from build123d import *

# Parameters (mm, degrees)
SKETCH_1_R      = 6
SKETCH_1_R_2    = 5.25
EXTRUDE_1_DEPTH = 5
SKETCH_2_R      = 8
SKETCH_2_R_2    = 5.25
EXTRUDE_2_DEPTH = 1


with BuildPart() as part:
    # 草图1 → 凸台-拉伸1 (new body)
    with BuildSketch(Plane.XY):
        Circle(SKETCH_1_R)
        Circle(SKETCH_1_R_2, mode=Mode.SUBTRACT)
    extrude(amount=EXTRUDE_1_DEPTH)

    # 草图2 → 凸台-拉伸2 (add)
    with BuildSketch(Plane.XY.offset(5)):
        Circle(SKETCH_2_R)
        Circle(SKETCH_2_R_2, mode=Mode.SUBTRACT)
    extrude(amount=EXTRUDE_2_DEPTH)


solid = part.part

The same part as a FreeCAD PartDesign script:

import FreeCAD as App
import Part
import Sketcher
Q = App.Units.Quantity

doc = App.newDocument("Part")
body = doc.addObject("PartDesign::Body", "Body")

# Sketch on XY plane
sketch1 = body.newObject("Sketcher::SketchObject", "Sketch")
sketch1.AttachmentSupport = (doc.getObject("XY_Plane"), [""])
sketch1.MapMode = "FlatFace"
sketch1.addGeometry(Part.Circle(App.Vector(0, 0, 0), App.Vector(0, 0, 1), 6), False)
sketch1.addGeometry(Part.Circle(App.Vector(0, 0, 0), App.Vector(0, 0, 1), 5), False)
sketch1.addConstraint(Sketcher.Constraint("Coincident", 0, 3, -1, 1))
sketch1.addConstraint(Sketcher.Constraint("Coincident", 1, 3, -1, 1))
sketch1.addConstraint(Sketcher.Constraint("Diameter", 0, Q("12 mm")))
sketch1.addConstraint(Sketcher.Constraint("Diameter", 1, Q("10.5 mm")))
pad1 = body.newObject("PartDesign::Pad", "Pad")
pad1.Profile = sketch1
pad1.Length = 5

# Sketch on XY plane
sketch2 = body.newObject("Sketcher::SketchObject", "Sketch001")
sketch2.AttachmentSupport = (doc.getObject("XY_Plane"), [""])
sketch2.MapMode = "FlatFace"
sketch2.AttachmentOffset = App.Placement(App.Vector(0, 0, 5), App.Rotation())
sketch2.addGeometry(Part.Circle(App.Vector(0, 0, 0), App.Vector(0, 0, 1), 8), False)
sketch2.addGeometry(Part.Circle(App.Vector(0, 0, 0), App.Vector(0, 0, 1), 5), False)
sketch2.addConstraint(Sketcher.Constraint("Coincident", 0, 3, -1, 1))
sketch2.addConstraint(Sketcher.Constraint("Coincident", 1, 3, -1, 1))
sketch2.addConstraint(Sketcher.Constraint("Diameter", 0, Q("16 mm")))
sketch2.addConstraint(Sketcher.Constraint("Diameter", 1, Q("10.5 mm")))
pad2 = body.newObject("PartDesign::Pad", "Pad001")
pad2.Profile = sketch2
pad2.Length = 1

doc.recompute()
